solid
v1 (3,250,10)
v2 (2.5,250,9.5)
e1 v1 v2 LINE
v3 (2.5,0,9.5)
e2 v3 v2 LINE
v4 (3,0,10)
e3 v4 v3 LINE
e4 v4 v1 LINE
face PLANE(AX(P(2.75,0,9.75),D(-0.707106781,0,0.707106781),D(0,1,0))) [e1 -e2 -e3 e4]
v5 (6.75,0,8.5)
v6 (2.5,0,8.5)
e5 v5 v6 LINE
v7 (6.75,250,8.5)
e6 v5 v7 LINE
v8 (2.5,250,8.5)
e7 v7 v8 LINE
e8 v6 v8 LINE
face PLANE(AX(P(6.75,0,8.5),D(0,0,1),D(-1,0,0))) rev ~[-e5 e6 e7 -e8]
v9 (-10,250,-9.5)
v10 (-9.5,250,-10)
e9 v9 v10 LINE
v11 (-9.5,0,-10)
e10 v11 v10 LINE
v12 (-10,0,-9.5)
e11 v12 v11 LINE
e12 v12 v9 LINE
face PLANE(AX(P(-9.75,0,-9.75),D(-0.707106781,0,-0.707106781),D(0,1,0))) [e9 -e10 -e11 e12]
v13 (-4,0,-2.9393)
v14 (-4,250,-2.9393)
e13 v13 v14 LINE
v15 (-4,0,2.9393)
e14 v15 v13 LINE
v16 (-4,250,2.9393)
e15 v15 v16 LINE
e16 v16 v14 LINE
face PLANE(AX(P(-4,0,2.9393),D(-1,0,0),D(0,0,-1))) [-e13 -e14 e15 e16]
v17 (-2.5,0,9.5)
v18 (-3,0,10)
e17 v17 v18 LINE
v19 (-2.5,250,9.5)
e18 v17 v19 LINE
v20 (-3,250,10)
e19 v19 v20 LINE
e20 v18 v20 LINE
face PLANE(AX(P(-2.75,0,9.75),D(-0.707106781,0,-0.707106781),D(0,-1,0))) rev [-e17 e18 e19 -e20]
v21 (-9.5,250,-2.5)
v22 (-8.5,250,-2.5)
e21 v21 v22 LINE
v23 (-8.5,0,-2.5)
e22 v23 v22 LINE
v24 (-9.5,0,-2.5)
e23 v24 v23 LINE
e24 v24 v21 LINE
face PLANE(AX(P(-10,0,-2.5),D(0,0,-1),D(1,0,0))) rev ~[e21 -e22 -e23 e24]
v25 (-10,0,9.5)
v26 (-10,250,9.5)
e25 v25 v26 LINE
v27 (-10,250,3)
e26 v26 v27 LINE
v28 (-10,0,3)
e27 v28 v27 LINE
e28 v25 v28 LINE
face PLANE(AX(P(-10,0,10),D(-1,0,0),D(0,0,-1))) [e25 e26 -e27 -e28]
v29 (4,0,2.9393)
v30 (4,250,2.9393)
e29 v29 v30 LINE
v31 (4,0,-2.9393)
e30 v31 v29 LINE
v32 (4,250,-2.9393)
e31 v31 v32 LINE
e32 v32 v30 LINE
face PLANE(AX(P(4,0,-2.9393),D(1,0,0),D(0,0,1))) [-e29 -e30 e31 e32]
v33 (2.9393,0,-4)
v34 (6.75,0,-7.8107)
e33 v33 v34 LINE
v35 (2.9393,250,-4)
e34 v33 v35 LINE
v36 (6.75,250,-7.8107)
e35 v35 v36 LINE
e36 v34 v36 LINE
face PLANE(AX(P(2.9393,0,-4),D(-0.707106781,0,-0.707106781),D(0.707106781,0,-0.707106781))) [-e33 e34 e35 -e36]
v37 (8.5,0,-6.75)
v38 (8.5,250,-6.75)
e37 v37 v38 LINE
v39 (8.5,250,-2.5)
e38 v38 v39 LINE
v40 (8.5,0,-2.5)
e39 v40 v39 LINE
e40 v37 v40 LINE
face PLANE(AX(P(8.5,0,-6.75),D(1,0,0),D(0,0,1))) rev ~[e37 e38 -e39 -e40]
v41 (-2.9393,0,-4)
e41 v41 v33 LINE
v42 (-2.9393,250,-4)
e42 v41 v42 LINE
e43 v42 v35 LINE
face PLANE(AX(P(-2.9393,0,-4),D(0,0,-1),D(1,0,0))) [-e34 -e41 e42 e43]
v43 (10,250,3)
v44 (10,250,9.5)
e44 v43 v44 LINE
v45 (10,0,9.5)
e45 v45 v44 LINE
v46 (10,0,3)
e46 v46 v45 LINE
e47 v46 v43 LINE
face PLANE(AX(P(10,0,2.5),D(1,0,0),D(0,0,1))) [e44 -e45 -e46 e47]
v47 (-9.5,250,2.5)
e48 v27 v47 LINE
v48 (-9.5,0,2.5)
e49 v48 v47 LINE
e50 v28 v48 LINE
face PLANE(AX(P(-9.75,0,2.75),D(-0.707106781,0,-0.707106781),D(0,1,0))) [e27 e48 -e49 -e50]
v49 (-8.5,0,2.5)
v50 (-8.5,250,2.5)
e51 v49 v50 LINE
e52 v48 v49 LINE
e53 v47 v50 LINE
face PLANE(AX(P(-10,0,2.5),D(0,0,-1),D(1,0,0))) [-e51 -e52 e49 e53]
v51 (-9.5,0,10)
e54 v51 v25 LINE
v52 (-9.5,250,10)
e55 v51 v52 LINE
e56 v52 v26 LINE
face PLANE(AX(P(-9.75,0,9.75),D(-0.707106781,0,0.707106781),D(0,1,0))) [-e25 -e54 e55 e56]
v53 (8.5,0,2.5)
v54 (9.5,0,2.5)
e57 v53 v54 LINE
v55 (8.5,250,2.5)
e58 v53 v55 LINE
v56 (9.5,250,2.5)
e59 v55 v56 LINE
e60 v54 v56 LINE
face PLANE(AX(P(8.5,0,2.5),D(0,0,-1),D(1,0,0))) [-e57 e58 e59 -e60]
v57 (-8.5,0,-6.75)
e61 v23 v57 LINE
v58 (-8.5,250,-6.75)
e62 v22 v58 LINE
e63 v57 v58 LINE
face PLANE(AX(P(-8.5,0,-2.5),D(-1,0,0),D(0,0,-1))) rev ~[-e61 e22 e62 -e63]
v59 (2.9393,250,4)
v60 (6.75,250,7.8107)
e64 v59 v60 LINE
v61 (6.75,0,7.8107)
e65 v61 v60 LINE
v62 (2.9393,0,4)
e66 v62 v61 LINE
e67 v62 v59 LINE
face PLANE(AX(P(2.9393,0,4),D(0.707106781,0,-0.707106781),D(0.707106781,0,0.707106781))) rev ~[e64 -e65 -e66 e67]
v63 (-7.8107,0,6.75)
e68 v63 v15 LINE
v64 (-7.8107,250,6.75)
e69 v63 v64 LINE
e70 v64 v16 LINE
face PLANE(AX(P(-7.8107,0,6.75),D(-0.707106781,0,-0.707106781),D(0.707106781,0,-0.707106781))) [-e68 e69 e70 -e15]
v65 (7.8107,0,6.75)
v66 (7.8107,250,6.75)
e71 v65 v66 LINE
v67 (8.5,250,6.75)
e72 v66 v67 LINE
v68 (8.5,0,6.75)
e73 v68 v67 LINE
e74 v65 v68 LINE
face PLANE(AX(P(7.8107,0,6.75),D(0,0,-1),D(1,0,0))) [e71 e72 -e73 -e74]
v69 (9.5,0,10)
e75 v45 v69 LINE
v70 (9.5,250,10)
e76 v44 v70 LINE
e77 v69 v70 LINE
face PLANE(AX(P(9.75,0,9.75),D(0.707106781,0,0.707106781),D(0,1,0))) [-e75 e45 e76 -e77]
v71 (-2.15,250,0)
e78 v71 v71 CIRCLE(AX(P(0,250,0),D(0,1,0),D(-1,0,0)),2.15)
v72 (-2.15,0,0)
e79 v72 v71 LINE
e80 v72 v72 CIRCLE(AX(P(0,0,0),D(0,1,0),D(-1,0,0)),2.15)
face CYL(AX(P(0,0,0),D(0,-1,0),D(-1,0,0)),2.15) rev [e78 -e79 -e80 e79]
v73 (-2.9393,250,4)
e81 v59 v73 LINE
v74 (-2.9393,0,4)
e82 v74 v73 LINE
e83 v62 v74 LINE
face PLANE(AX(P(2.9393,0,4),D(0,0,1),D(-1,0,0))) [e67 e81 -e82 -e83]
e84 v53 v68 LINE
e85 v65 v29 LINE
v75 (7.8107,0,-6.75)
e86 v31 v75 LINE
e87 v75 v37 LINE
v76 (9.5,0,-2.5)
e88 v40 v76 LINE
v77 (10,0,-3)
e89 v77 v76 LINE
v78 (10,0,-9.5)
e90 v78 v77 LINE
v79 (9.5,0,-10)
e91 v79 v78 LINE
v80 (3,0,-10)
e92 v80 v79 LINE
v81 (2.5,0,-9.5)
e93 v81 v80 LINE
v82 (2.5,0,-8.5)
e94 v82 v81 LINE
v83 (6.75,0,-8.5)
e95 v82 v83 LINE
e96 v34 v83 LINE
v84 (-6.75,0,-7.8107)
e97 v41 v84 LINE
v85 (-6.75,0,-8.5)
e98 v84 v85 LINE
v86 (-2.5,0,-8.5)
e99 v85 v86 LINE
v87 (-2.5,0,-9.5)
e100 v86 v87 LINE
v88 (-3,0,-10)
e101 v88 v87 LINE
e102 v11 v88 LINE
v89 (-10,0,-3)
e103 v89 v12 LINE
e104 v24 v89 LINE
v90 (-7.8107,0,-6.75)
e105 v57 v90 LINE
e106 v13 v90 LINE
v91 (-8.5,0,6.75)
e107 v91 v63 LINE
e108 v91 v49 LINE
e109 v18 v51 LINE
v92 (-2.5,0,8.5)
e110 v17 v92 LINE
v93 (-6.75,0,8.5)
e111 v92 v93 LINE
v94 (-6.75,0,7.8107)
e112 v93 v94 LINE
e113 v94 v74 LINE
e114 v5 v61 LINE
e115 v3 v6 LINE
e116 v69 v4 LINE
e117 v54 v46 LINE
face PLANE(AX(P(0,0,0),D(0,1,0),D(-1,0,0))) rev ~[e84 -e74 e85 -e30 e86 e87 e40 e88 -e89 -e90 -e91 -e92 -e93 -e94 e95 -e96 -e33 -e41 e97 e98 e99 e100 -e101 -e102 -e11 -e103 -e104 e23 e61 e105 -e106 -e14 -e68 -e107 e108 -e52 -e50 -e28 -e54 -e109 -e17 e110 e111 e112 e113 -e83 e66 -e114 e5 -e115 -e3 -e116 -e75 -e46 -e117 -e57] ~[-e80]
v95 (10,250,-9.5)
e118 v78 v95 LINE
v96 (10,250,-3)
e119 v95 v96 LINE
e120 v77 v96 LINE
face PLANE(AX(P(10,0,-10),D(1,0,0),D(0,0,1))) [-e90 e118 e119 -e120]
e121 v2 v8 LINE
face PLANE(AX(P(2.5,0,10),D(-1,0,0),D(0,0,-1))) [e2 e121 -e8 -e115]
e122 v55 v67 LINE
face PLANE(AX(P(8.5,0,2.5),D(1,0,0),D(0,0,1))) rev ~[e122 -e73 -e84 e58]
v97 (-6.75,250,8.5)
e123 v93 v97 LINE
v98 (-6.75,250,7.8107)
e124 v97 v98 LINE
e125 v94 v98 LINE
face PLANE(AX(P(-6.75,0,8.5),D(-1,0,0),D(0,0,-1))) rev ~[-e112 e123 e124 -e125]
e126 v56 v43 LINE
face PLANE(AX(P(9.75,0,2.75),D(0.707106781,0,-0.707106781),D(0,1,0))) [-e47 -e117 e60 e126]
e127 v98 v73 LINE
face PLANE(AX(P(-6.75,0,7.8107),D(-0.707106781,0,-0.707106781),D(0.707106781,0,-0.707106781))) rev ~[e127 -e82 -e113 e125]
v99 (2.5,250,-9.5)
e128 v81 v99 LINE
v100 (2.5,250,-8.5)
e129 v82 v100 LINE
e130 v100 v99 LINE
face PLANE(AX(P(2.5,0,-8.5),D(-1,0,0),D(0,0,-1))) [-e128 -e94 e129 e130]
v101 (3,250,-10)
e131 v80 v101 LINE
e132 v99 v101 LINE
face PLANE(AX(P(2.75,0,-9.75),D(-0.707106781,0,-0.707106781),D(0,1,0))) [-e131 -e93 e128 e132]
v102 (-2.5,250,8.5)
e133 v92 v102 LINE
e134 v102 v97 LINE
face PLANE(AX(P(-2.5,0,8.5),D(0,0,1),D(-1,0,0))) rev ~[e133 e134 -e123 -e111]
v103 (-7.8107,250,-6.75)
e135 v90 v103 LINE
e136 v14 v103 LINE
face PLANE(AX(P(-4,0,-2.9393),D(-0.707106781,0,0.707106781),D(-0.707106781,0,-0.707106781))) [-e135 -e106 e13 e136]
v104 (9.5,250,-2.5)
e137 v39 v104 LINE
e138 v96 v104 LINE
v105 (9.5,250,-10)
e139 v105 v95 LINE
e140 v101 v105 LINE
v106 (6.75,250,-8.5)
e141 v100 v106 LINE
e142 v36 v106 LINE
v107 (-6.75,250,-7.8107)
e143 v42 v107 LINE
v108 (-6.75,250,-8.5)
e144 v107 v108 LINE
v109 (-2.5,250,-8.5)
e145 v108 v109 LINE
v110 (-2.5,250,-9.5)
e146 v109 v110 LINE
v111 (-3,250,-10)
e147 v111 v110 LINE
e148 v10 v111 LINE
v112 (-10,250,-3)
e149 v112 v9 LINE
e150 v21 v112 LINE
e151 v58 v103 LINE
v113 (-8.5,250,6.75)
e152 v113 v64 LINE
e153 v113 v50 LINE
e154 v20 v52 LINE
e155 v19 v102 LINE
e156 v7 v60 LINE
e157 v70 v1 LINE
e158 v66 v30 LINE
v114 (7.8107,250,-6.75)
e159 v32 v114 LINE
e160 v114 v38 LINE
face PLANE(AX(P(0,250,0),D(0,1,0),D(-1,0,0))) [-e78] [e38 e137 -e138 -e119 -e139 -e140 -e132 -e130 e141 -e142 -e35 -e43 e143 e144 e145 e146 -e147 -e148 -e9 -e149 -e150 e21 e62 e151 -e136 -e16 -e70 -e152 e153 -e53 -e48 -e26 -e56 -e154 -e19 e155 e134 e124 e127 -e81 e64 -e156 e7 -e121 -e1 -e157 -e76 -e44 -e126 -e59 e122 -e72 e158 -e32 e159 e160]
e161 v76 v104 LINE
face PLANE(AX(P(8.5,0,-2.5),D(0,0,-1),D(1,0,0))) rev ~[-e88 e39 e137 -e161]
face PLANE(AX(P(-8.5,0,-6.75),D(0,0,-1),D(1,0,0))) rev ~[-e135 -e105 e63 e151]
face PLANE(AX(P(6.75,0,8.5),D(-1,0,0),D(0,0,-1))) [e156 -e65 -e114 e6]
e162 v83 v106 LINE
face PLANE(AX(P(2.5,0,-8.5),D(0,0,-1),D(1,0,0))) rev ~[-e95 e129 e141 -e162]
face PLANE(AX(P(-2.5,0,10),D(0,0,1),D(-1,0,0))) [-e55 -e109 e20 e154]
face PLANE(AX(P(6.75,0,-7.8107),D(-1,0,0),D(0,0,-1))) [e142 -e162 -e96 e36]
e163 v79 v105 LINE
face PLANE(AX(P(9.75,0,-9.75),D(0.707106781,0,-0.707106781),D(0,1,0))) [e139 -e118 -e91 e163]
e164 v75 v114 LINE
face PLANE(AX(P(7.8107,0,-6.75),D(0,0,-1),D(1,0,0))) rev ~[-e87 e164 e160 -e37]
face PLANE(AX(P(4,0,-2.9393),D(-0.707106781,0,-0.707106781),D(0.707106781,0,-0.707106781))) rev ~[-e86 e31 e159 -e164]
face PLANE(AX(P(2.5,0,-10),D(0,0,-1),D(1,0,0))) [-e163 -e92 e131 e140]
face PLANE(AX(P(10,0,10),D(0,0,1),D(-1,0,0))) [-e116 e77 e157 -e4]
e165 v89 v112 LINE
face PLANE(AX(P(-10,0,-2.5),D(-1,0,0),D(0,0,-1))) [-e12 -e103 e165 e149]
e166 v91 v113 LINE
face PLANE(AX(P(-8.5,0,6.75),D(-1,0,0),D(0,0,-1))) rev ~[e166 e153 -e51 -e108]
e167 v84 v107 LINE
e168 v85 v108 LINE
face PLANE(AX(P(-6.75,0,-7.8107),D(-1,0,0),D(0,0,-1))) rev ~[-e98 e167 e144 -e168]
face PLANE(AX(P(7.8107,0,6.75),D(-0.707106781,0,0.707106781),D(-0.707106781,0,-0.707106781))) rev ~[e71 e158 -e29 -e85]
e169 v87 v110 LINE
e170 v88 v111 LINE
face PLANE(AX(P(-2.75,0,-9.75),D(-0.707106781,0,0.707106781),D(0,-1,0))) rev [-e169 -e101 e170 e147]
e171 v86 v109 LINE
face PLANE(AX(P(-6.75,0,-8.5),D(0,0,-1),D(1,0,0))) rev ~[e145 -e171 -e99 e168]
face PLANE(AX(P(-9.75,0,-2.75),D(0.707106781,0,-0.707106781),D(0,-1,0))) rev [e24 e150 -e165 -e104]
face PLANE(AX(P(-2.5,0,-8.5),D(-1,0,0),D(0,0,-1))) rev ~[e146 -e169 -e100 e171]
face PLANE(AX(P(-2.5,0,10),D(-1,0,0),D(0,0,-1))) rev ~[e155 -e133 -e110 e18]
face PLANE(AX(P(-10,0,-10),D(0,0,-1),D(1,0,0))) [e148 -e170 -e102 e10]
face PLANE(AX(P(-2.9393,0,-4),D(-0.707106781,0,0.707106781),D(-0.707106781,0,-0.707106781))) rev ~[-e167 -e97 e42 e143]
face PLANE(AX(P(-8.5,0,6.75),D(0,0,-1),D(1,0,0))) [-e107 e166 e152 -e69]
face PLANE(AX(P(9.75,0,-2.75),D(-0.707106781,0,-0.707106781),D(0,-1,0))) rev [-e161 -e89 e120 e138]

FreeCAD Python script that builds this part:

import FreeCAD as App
import Part
import Sketcher
from FreeCAD import Vector


def edges_at(feature, points):
    """Names of the edges that pass closest to the given points."""
    edges = feature.Shape.Edges
    near = lambda p: min(range(len(edges)), key=lambda i: edges[i].distToShape(Part.Vertex(*p))[0])
    return sorted({f"Edge{near(p) + 1}" for p in points})


def add_polygon(sketch, points):
    """Adds a closed chain of lines whose ends are joined by coincident constraints."""
    first, n = sketch.GeometryCount, len(points)
    for a, b in zip(points, points[1:] + points[:1]):
        sketch.addGeometry(Part.LineSegment(App.Vector(*a, 0), App.Vector(*b, 0)), False)
    for i in range(n):
        sketch.addConstraint(Sketcher.Constraint("Coincident", first + i, 2, first + (i + 1) % n, 1))

doc = App.newDocument("Part")
body = doc.addObject("PartDesign::Body", "Body")

# Sketch on XZ plane
sketch1 = body.newObject("Sketcher::SketchObject", "Sketch")
sketch1.AttachmentSupport = (doc.getObject("XZ_Plane"), [""])
sketch1.MapMode = "FlatFace"
add_polygon(sketch1, [(-2.9, 4), (2.9, 4), (6.8, 7.8), (6.8, 8.5), (2.5, 8.5), (2.5, 10), (10, 10), (10, 2.5), (8.5, 2.5), (8.5, 6.8), (7.8, 6.8), (4, 2.9), (4, -2.9), (7.8, -6.8), (8.5, -6.8), (8.5, -2.5), (10, -2.5), (10, -10), (2.5, -10), (2.5, -8.5), (6.8, -8.5), (6.8, -7.8), (2.9, -4), (-2.9, -4), (-6.8, -7.8), (-6.8, -8.5), (-2.5, -8.5), (-2.5, -10), (-10, -10), (-10, -2.5), (-8.5, -2.5), (-8.5, -6.8), (-7.8, -6.8), (-4, -2.9), (-4, 2.9), (-7.8, 6.8), (-8.5, 6.8), (-8.5, 2.5), (-10, 2.5), (-10, 10), (-2.5, 10), (-2.5, 8.5), (-6.8, 8.5), (-6.8, 7.8)])  # lines 0-43
sketch1.addGeometry(Part.Circle(Vector(0, 0, 0), Vector(0, 0, 1), 2.1), False)  # 44
sketch1.addConstraint([
    Sketcher.Constraint("Horizontal", 0),
    Sketcher.Constraint("Vertical", 2),
    Sketcher.Constraint("Horizontal", 3),
    Sketcher.Constraint("Vertical", 4),
    Sketcher.Constraint("Horizontal", 5),
    Sketcher.Constraint("Vertical", 6),
    Sketcher.Constraint("Horizontal", 7),
    Sketcher.Constraint("Vertical", 8),
    Sketcher.Constraint("Horizontal", 9),
    Sketcher.Constraint("Vertical", 11),
    Sketcher.Constraint("Horizontal", 13),
    Sketcher.Constraint("Vertical", 14),
    Sketcher.Constraint("Horizontal", 15),
    Sketcher.Constraint("Vertical", 16),
    Sketcher.Constraint("Horizontal", 17),
    Sketcher.Constraint("Vertical", 18),
    Sketcher.Constraint("Horizontal", 19),
    Sketcher.Constraint("Vertical", 20),
    Sketcher.Constraint("Horizontal", 22),
    Sketcher.Constraint("Vertical", 24),
    Sketcher.Constraint("Horizontal", 25),
    Sketcher.Constraint("Vertical", 26),
    Sketcher.Constraint("Horizontal", 27),
    Sketcher.Constraint("Vertical", 28),
    Sketcher.Constraint("Horizontal", 29),
    Sketcher.Constraint("Vertical", 30),
    Sketcher.Constraint("Horizontal", 31),
    Sketcher.Constraint("Vertical", 33),
    Sketcher.Constraint("Horizontal", 35),
    Sketcher.Constraint("Vertical", 36),
    Sketcher.Constraint("Horizontal", 37),
    Sketcher.Constraint("Vertical", 38),
    Sketcher.Constraint("Horizontal", 39),
    Sketcher.Constraint("Vertical", 40),
    Sketcher.Constraint("Horizontal", 41),
    Sketcher.Constraint("Vertical", 42),
    Sketcher.Constraint("Coincident", 44, 3, -1, 1),
    Sketcher.Constraint("Symmetric", 0, 2, 22, 2, -1, 1),
    Sketcher.Constraint("Symmetric", 1, 2, 23, 2, -1, 1),
    Sketcher.Constraint("Symmetric", 3, 2, 25, 2, -1, 1),
    Sketcher.Constraint("Symmetric", 5, 2, 27, 2, -1, 1),
    Sketcher.Constraint("Symmetric", 7, 2, 29, 2, -1, 1),
    Sketcher.Constraint("Symmetric", 9, 2, 31, 2, -1, 1),
    Sketcher.Constraint("Symmetric", 10, 2, 32, 2, -1, 1),
    Sketcher.Constraint("Symmetric", 12, 2, 34, 2, -1, 1),
    Sketcher.Constraint("Symmetric", 14, 2, 36, 2, -1, 1),
    Sketcher.Constraint("Symmetric", 16, 2, 38, 2, -1, 1),
    Sketcher.Constraint("Symmetric", 18, 2, 40, 2, -1, 1),
    Sketcher.Constraint("Symmetric", 20, 2, 42, 2, -1, 1),
    Sketcher.Constraint("Symmetric", 20, 2, 23, 2, -2),
    Sketcher.Constraint("Symmetric", 18, 2, 25, 2, -2),
    Sketcher.Constraint("Symmetric", 16, 2, 27, 2, -2),
    Sketcher.Constraint("Symmetric", 14, 2, 29, 2, -2),
    Sketcher.Constraint("Symmetric", 12, 2, 31, 2, -2),
    Sketcher.Constraint("Parallel", 1, 10),
    Sketcher.Constraint("Perpendicular", 10, 12),
    Sketcher.Constraint("Parallel", 12, 21),
    Sketcher.Constraint("Perpendicular", 32, 34),
    Sketcher.Constraint("Parallel", 34, 43),
    Sketcher.Constraint("Horizontal", 11, 2, 32, 2),
    Sketcher.Constraint("Equal", 35, 2),
    Sketcher.Constraint("Equal", 37, 4),
    Sketcher.Constraint("Equal", 39, 6),
    Sketcher.Constraint("Equal", 41, 8),
    Sketcher.Constraint("Equal", 22, 11),
    Sketcher.Constraint("Equal", 1, 10),
    Sketcher.Constraint("DistanceX", 5, 1, 5, 2, 7.5),
    Sketcher.Constraint("DistanceX", 7, 2, 7, 1, 1.5),
    Sketcher.Constraint("DistanceY", 0, 2, 4, 2, 6.0),
    Sketcher.Constraint("DistanceY", 14, 2, 7, 2, 5.0),
    Sketcher.Constraint("Diameter", 44, 4.3),
    Sketcher.Constraint("DistanceX", 3, 2, 3, 1, 4.25),
    Sketcher.Constraint("DistanceX", 0, 1, 0, 2, 5.8786),
])
pad1 = body.newObject("PartDesign::Pad", "Pad")
pad1.Profile = sketch1
pad1.Length = 250
pad1.Reversed = True
doc.recompute()

chamfer = body.newObject("PartDesign::Chamfer", "Chamfer")
chamfer.Base = (pad1, edges_at(pad1, [
    (-10, 125, 2.5),
    (-10, 125, -2.5),
    (-2.5, 125, 10),
    (2.5, 125, 10),
    (10, 125, 2.5),
    (10, 125, -2.5),
    (2.5, 125, -10),
    (-2.5, 125, -10),
    (-10, 125, 10),
    (-10, 125, -10),
    (10, 125, -10),
    (10, 125, 10),
]))
chamfer.Size = 0.5

doc.recompute()
